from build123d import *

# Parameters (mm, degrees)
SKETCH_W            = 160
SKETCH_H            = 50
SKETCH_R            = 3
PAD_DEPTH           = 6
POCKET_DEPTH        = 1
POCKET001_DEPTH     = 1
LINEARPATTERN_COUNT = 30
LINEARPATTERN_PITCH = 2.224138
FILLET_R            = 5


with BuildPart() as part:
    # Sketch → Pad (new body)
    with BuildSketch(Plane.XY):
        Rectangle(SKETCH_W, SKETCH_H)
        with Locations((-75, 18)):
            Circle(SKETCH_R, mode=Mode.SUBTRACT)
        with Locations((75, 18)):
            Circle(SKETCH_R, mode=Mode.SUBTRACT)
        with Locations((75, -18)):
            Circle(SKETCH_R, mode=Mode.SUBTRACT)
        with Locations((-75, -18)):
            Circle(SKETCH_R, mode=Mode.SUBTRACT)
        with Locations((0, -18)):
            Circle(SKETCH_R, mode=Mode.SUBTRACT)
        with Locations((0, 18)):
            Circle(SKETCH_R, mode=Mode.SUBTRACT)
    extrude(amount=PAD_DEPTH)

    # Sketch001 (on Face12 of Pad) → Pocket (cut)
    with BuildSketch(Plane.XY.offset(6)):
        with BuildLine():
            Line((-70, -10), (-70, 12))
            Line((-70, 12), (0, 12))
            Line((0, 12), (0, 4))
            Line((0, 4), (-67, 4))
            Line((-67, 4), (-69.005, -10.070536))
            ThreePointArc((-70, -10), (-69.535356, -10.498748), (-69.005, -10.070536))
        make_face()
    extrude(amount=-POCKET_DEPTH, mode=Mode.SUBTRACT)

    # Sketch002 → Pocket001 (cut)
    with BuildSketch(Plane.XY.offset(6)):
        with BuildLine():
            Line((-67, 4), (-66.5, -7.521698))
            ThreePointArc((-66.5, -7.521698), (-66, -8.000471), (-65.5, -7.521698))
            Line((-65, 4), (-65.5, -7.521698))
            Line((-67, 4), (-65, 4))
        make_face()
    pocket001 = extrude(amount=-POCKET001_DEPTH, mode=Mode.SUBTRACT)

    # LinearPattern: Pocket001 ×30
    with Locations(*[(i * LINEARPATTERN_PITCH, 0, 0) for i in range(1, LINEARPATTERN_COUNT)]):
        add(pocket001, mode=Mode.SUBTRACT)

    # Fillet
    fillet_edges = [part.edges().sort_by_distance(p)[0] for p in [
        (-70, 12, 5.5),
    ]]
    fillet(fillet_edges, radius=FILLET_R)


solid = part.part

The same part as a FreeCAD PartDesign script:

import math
import FreeCAD as App
import Part
import Sketcher

V = App.Vector
Q = App.Units.Quantity


def edges_at(feature, points):
    """Names of the edges that pass closest to the given points."""
    edges = feature.Shape.Edges
    near = lambda p: min(range(len(edges)), key=lambda i: edges[i].distToShape(Part.Vertex(*p))[0])
    return sorted({f"Edge{near(p) + 1}" for p in points})


def add_polygon(sketch, points):
    """Adds a closed chain of lines whose ends are joined by coincident constraints."""
    first, n = sketch.GeometryCount, len(points)
    for a, b in zip(points, points[1:] + points[:1]):
        sketch.addGeometry(Part.LineSegment(App.Vector(*a, 0), App.Vector(*b, 0)), False)
    for i in range(n):
        sketch.addConstraint(Sketcher.Constraint("Coincident", first + i, 2, first + (i + 1) % n, 1))

doc = App.newDocument("Part")
body = doc.addObject("PartDesign::Body", "Body")

# Sketch on XY plane
sketch1 = body.newObject("Sketcher::SketchObject", "Sketch")
sketch1.AttachmentSupport = (doc.getObject("XY_Plane"), [""])
sketch1.MapMode = "FlatFace"
add_polygon(sketch1, [(-80, 25), (-80, -25), (80, -25), (80, 25)])  # lines 0-3
sketch1.addGeometry(Part.Circle(V(-75, -18, 0), V(0, 0, 1), 3), False)  # 4
sketch1.addGeometry(Part.Circle(V(0, -18, 0), V(0, 0, 1), 3), False)  # 5
sketch1.addGeometry(Part.Circle(V(75, -18, 0), V(0, 0, 1), 3), False)  # 6
sketch1.addGeometry(Part.Circle(V(-75, 18, 0), V(0, 0, 1), 3), False)  # 7
sketch1.addGeometry(Part.Circle(V(0, 18, 0), V(0, 0, 1), 3), False)  # 8
sketch1.addGeometry(Part.Circle(V(75, 18, 0), V(0, 0, 1), 3), False)  # 9
sketch1.addConstraint([
    Sketcher.Constraint("Vertical", 0),
    Sketcher.Constraint("Horizontal", 1),
    Sketcher.Constraint("Vertical", 2),
    Sketcher.Constraint("Horizontal", 3),
    Sketcher.Constraint("Equal", 4, 5),
    Sketcher.Constraint("Equal", 5, 6),
    Sketcher.Constraint("Equal", 6, 7),
    Sketcher.Constraint("Equal", 7, 8),
    Sketcher.Constraint("Equal", 8, 9),
    Sketcher.Constraint("Symmetric", 6, 3, 7, 3, -1, 1),
    Sketcher.Constraint("Symmetric", 5, 3, 8, 3, -1, 1),
    Sketcher.Constraint("Symmetric", 4, 3, 9, 3, -1, 1),
    Sketcher.Constraint("Symmetric", 0, 2, 2, 2, -1, 1),
    Sketcher.Constraint("Symmetric", 4, 3, 6, 3, -2),
    Sketcher.Constraint("PointOnObject", 5, 3, -2),
    Sketcher.Constraint("Horizontal", 4, 3, 5, 3),
    Sketcher.Constraint("Diameter", 4, Q("6 mm")),
    Sketcher.Constraint("DistanceX", 1, 1, 1, 2, Q("160 mm")),
    Sketcher.Constraint("DistanceY", 0, 2, 0, 1, Q("50 mm")),
    Sketcher.Constraint("DistanceX", 4, 3, -1, 1, Q("75 mm")),
    Sketcher.Constraint("DistanceY", 4, 3, -1, 1, Q("18 mm")),
])
pad1 = body.newObject("PartDesign::Pad", "Pad")
pad1.Profile = sketch1
pad1.Length = 6

# Sketch on XY plane
sketch2 = body.newObject("Sketcher::SketchObject", "Sketch001")
sketch2.AttachmentSupport = (doc.getObject("XY_Plane"), [""])
sketch2.MapMode = "FlatFace"
sketch2.AttachmentOffset = App.Placement(V(0, 0, 6), App.Rotation())
sketch2.addGeometry([
    Part.LineSegment(V(-70, 12, 0), V(-70, -10, 0)),  # 0
    Part.ArcOfCircle(Part.Circle(V(-69.5, -10, 0), V(0, 0, 1), 0.5), math.radians(-180), math.radians(-8)),  # 1
    Part.LineSegment(V(-69, -10.1, 0), V(-67, 4, 0)),  # 2
    Part.LineSegment(V(-67, 4, 0), V(0, 4, 0)),  # 3
    Part.LineSegment(V(0, 4, 0), V(0, 12, 0)),  # 4
    Part.LineSegment(V(0, 12, 0), V(-70, 12, 0)),  # 5
], False)
sketch2.addConstraint([
    Sketcher.Constraint("Tangent", 0, 2, 1, 1),
    Sketcher.Constraint("Tangent", 1, 2, 2, 1),
    Sketcher.Constraint("Coincident", 2, 2, 3, 1),
    Sketcher.Constraint("Coincident", 3, 2, 4, 1),
    Sketcher.Constraint("Coincident", 4, 2, 5, 1),
    Sketcher.Constraint("Coincident", 5, 2, 0, 1),
    Sketcher.Constraint("Vertical", 0),
    Sketcher.Constraint("Horizontal", 3),
    Sketcher.Constraint("Vertical", 4),
    Sketcher.Constraint("Horizontal", 5),
    Sketcher.Constraint("PointOnObject", 3, 2, -2),
    Sketcher.Constraint("Radius", 1, Q("0.5 mm")),
    Sketcher.Constraint("DistanceX", 3, 1, 3, 2, Q("67 mm")),
    Sketcher.Constraint("DistanceX", 5, 2, 5, 1, Q("70 mm")),
    Sketcher.Constraint("DistanceY", 0, 2, 0, 1, Q("22 mm")),
    Sketcher.Constraint("DistanceY", 4, 1, 4, 2, Q("8 mm")),
    Sketcher.Constraint("DistanceY", 1, 3, -1, 1, Q("9.999999 mm")),
])
pocket1 = body.newObject("PartDesign::Pocket", "Pocket")
pocket1.Profile = sketch2
pocket1.Length = 1

# Sketch on XY plane
sketch3 = body.newObject("Sketcher::SketchObject", "Sketch002")
sketch3.AttachmentSupport = (doc.getObject("XY_Plane"), [""])
sketch3.MapMode = "FlatFace"
sketch3.AttachmentOffset = App.Placement(V(0, 0, 6), App.Rotation())
sketch3.addGeometry([
    Part.LineSegment(V(-67, 4, 0), V(-66.5, -7.5, 0)),
    Part.ArcOfCircle(Part.Circle(V(-66, -7.5, 0), V(0, 0, 1), 0.5), math.radians(-178), math.radians(-2)),
    Part.LineSegment(V(-65.5, -7.5, 0), V(-65, 4, 0)),
    Part.LineSegment(V(-65, 4, 0), V(-67, 4, 0)),
], False)
sketch3.addConstraint([
    Sketcher.Constraint("Tangent", 0, 2, 1, 1),
    Sketcher.Constraint("Tangent", 1, 2, 2, 1),
    Sketcher.Constraint("Coincident", 2, 2, 3, 1),
    Sketcher.Constraint("Coincident", 3, 2, 0, 1),
    Sketcher.Constraint("Horizontal", 3),
    Sketcher.Constraint("Horizontal", 0, 2, 1, 2),
    Sketcher.Constraint("DistanceX", 3, 2, 3, 1, Q("2 mm")),
    Sketcher.Constraint("DistanceX", 1, 3, -1, 1, Q("66 mm")),
    Sketcher.Constraint("DistanceY", -1, 1, 2, 2, Q("4 mm")),
    Sketcher.Constraint("DistanceX", 0, 2, 1, 2, Q("1 mm")),
    Sketcher.Constraint("DistanceY", 1, 3, -1, 1, Q("7.5 mm")),
])
pocket2 = body.newObject("PartDesign::Pocket", "Pocket001")
pocket2.Profile = sketch3
pocket2.Length = 1
doc.recompute()

linearpattern = body.newObject("PartDesign::LinearPattern", "LinearPattern")
linearpattern.Originals = [pocket2]
linearpattern.Direction = (doc.getObject("X_Axis"), [""])
linearpattern.Mode = "offset"
linearpattern.Offset = 2.224138
linearpattern.Occurrences = 30
body.Tip = linearpattern
doc.recompute()

fillet = body.newObject("PartDesign::Fillet", "Fillet")
fillet.Base = (linearpattern, edges_at(linearpattern, [(-70, 12, 5.5)]))
fillet.Radius = 5

doc.recompute()
